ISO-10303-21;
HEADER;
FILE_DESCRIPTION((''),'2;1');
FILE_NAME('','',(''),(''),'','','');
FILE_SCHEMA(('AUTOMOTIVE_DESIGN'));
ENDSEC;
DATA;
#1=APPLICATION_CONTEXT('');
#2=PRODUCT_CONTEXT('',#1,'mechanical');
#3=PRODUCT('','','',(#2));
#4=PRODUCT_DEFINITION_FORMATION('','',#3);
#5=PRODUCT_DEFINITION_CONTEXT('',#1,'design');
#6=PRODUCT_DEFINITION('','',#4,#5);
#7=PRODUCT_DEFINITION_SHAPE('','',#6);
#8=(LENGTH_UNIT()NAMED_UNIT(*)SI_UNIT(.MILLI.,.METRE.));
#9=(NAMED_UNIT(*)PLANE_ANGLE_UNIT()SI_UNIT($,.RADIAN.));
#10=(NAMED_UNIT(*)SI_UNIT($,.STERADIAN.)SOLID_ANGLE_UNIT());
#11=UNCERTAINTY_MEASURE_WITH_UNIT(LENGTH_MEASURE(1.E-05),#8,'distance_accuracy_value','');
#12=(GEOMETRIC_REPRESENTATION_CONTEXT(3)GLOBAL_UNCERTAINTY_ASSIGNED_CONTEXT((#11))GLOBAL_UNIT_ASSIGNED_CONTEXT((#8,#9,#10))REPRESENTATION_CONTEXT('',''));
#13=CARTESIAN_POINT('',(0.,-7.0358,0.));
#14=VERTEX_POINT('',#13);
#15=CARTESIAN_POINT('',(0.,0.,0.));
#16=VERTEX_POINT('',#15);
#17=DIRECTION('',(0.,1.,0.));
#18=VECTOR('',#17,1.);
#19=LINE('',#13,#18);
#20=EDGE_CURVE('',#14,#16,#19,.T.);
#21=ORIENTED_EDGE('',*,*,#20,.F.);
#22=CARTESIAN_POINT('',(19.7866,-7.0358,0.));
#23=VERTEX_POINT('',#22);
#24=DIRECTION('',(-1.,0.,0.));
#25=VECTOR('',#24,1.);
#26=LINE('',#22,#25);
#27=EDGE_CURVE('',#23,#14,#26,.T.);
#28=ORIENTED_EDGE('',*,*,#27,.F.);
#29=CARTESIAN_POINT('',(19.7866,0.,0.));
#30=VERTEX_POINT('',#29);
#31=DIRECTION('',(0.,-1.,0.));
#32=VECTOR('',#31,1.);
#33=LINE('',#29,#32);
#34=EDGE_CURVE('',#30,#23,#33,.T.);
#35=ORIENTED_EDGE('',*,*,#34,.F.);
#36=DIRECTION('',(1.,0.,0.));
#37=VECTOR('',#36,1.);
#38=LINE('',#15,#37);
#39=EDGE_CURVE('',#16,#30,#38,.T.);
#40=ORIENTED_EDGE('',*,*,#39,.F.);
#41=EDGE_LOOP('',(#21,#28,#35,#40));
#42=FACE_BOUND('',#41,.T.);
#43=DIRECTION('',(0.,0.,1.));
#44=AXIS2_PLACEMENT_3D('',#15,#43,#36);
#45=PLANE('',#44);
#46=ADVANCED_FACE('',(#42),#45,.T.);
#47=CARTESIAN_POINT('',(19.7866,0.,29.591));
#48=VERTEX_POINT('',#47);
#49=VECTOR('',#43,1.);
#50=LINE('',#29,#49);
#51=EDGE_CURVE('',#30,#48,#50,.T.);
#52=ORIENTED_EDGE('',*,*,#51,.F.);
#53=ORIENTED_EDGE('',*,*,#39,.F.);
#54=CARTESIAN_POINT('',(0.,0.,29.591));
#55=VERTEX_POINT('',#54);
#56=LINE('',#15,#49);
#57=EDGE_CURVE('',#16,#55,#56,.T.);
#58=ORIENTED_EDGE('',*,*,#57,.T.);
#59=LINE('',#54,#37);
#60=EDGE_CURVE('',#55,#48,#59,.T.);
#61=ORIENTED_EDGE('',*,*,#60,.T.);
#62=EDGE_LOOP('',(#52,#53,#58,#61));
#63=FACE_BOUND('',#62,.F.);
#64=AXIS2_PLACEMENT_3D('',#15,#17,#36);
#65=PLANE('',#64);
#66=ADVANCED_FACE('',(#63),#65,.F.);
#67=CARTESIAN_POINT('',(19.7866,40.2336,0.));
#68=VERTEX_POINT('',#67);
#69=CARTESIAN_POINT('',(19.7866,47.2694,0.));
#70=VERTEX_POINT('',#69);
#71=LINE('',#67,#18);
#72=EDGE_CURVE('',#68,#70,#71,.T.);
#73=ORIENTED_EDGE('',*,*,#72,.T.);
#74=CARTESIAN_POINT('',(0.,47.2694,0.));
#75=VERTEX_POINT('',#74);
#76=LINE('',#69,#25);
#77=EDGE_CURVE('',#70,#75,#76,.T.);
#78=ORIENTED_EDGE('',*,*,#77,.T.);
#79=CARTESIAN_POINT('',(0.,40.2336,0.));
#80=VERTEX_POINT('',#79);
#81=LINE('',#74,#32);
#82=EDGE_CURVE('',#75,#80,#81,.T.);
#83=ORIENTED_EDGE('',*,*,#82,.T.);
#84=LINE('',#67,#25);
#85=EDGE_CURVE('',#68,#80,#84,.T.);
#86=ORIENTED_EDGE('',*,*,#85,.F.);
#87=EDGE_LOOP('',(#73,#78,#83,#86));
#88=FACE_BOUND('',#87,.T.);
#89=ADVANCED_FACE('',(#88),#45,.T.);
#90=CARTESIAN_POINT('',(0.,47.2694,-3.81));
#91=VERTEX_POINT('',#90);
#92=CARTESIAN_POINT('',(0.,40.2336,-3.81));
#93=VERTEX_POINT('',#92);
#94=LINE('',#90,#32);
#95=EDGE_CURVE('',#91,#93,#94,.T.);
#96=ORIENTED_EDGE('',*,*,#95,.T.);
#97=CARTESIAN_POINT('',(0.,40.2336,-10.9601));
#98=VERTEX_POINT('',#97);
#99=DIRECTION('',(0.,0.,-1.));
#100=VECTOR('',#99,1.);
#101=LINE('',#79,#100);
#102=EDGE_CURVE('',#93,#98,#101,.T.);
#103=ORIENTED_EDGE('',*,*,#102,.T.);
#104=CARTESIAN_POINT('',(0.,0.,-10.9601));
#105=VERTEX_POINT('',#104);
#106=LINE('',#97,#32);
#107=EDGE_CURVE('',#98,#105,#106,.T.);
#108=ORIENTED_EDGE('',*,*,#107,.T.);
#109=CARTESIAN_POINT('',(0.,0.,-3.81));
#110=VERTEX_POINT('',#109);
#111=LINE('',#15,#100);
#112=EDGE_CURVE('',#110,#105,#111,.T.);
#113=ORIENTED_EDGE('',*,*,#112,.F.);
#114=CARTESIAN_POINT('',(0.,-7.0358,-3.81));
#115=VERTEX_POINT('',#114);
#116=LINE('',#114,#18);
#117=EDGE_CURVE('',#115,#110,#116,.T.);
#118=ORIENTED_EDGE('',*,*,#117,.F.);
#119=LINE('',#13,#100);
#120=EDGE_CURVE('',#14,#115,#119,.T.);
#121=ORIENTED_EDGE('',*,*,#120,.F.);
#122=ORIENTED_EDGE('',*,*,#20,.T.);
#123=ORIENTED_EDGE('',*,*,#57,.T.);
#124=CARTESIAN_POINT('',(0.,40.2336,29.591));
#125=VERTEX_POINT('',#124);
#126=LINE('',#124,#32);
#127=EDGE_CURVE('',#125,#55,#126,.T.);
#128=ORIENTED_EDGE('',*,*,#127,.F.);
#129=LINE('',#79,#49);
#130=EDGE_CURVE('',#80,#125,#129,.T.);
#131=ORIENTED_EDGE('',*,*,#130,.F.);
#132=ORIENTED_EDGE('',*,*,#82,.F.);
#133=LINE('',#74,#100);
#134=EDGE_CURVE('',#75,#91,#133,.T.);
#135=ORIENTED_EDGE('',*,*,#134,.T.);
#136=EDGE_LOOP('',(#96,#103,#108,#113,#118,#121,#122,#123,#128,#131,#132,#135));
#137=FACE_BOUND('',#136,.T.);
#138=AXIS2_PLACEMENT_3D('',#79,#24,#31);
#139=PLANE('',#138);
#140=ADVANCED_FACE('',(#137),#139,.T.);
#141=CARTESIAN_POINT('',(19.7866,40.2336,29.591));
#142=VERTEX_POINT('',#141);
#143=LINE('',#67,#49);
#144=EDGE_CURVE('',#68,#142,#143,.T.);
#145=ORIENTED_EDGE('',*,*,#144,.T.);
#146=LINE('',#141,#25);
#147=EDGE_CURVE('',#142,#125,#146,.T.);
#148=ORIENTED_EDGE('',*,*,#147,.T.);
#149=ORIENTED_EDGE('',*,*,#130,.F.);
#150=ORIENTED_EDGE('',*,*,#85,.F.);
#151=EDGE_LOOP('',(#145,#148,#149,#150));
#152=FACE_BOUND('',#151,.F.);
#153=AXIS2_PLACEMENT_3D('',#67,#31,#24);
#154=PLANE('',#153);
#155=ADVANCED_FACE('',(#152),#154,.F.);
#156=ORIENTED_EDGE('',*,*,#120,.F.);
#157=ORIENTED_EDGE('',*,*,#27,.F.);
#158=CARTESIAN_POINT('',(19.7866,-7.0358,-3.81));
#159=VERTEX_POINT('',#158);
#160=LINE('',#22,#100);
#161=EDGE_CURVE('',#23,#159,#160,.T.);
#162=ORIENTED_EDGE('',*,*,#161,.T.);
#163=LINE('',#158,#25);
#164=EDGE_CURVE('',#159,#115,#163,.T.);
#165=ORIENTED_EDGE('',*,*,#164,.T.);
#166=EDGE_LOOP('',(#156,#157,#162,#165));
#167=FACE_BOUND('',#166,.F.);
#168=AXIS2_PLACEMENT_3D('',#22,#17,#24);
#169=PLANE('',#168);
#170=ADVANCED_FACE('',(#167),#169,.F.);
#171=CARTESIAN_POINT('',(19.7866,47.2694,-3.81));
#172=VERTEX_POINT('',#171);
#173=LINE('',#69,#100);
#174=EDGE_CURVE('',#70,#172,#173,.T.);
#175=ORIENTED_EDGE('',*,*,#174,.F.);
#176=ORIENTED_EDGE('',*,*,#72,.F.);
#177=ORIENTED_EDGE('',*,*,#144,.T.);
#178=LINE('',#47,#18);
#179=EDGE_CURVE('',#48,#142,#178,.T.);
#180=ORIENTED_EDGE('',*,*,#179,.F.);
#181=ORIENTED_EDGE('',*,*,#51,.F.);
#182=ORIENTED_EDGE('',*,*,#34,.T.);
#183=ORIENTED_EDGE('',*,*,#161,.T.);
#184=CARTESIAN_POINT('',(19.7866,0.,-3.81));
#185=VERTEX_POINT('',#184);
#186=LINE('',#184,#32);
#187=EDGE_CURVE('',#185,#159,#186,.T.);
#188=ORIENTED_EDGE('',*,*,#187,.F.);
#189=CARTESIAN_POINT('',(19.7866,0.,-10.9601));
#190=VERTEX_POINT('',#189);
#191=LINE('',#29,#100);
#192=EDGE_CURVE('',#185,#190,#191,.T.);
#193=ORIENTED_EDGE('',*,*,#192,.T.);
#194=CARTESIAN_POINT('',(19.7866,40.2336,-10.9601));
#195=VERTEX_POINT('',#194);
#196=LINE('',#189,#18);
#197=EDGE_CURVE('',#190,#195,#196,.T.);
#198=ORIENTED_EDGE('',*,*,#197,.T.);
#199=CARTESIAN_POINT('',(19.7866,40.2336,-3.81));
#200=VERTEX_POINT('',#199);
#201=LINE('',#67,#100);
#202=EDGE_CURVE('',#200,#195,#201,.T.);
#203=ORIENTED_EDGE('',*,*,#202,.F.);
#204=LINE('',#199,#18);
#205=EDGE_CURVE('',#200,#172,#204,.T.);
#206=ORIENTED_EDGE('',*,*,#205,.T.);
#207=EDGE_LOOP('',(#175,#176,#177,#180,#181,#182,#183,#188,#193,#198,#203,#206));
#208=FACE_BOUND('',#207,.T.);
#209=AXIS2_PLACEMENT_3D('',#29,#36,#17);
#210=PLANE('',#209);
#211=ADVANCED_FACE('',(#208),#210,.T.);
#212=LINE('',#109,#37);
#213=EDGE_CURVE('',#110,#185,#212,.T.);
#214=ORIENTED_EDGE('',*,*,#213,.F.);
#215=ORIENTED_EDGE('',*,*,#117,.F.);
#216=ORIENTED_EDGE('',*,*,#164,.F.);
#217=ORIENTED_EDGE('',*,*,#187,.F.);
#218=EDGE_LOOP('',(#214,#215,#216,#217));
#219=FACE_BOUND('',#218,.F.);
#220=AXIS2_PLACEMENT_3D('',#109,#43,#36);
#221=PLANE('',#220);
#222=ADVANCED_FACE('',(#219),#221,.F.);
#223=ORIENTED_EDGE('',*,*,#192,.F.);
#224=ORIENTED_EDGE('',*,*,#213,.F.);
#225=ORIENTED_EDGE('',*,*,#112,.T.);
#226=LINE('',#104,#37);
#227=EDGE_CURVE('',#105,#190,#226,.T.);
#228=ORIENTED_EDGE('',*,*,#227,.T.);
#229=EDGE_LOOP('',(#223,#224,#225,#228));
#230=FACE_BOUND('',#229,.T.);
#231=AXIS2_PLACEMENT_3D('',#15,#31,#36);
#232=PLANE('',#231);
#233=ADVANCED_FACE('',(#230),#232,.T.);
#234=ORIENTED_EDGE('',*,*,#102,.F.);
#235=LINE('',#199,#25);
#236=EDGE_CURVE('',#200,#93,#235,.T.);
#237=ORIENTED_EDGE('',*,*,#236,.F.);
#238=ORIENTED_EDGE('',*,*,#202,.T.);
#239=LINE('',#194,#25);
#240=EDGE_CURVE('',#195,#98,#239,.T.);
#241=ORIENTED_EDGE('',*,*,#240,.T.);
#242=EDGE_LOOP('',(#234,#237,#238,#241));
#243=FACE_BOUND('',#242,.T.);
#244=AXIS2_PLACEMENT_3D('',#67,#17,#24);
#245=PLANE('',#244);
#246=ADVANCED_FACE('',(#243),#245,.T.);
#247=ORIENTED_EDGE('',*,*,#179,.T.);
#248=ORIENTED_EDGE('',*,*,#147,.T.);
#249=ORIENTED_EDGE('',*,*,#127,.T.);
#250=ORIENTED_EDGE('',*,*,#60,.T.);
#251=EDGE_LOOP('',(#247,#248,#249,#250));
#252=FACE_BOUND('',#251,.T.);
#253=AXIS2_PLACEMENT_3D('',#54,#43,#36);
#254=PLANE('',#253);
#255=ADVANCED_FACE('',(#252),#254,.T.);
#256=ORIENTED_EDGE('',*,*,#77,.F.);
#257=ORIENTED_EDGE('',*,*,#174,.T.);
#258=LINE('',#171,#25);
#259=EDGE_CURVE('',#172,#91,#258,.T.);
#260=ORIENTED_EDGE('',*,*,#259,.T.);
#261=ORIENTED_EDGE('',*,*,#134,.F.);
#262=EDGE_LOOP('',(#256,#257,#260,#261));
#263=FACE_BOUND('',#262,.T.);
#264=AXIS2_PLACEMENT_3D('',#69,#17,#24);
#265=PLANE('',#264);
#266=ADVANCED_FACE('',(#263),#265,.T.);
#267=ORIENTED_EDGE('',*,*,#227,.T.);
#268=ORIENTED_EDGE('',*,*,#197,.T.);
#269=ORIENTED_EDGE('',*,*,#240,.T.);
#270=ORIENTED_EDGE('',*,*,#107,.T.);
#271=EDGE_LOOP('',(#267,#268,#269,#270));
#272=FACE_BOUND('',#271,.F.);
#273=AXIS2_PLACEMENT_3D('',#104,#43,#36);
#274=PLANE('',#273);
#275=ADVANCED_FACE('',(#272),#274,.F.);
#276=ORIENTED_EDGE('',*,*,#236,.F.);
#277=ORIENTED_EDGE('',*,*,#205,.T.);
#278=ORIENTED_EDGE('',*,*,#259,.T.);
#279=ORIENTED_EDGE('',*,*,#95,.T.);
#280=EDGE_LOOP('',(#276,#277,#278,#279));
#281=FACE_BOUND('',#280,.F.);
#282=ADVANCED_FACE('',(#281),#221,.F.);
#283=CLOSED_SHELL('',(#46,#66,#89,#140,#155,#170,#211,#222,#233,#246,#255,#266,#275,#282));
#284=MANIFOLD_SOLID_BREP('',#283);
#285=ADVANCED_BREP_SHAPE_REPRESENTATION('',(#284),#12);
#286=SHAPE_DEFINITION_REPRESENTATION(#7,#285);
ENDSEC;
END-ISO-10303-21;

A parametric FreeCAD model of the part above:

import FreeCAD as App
import Part
import Sketcher
Q = App.Units.Quantity

doc = App.newDocument("Part")
body = doc.addObject("PartDesign::Body", "Body")
body.AllowCompound = True

# Sketch on XY plane
sketch1 = body.newObject("Sketcher::SketchObject", "Sketch")
sketch1.AttachmentSupport = (doc.getObject("XY_Plane"), [""])
sketch1.MapMode = "FlatFace"
sketch1.addGeometry([
    Part.LineSegment(App.Vector(0, 40, 0), App.Vector(0, 0, 0)),
    Part.LineSegment(App.Vector(0, 0, 0), App.Vector(20, 0, 0)),
    Part.LineSegment(App.Vector(20, 0, 0), App.Vector(20, 40, 0)),
    Part.LineSegment(App.Vector(20, 40, 0), App.Vector(0, 40, 0)),
], False)
sketch1.addConstraint([
    Sketcher.Constraint("Coincident", 0, 2, 1, 1),
    Sketcher.Constraint("Coincident", 1, 2, 2, 1),
    Sketcher.Constraint("Coincident", 2, 2, 3, 1),
    Sketcher.Constraint("Coincident", 3, 2, 0, 1),
    Sketcher.Constraint("Vertical", 0),
    Sketcher.Constraint("Horizontal", 1),
    Sketcher.Constraint("Vertical", 2),
    Sketcher.Constraint("Horizontal", 3),
    Sketcher.Constraint("Coincident", 0, 2, -1, 1),
    Sketcher.Constraint("DistanceX", 1, 1, 1, 2, Q("0.779 in")),
    Sketcher.Constraint("DistanceY", 0, 2, 0, 1, Q("1.584 in")),
])
pad1 = body.newObject("PartDesign::Pad", "Pad")
pad1.Profile = sketch1
pad1.Length = Q("1.165 in")

# Sketch on XY plane
sketch2 = body.newObject("Sketcher::SketchObject", "Sketch001")
sketch2.AttachmentSupport = (doc.getObject("XY_Plane"), [""])
sketch2.MapMode = "FlatFace"
sketch2.addGeometry([
    Part.LineSegment(App.Vector(20, 0, 0), App.Vector(0, 0, 0)),  # 0
    Part.LineSegment(App.Vector(0, 0, 0), App.Vector(0, -7, 0)),  # 1
    Part.LineSegment(App.Vector(0, -7, 0), App.Vector(20, -7, 0)),  # 2
    Part.LineSegment(App.Vector(20, -7, 0), App.Vector(20, 0, 0)),  # 3
    Part.LineSegment(App.Vector(0, 47, 0), App.Vector(0, 40, 0)),  # 4
    Part.LineSegment(App.Vector(0, 40, 0), App.Vector(20, 40, 0)),  # 5
    Part.LineSegment(App.Vector(20, 40, 0), App.Vector(20, 47, 0)),  # 6
    Part.LineSegment(App.Vector(20, 47, 0), App.Vector(0, 47, 0)),  # 7
], False)
sketch2.addConstraint([
    Sketcher.Constraint("Coincident", 0, 2, 1, 1),
    Sketcher.Constraint("Coincident", 1, 2, 2, 1),
    Sketcher.Constraint("Coincident", 2, 2, 3, 1),
    Sketcher.Constraint("Coincident", 3, 2, 0, 1),
    Sketcher.Constraint("Coincident", 4, 2, 5, 1),
    Sketcher.Constraint("Coincident", 5, 2, 6, 1),
    Sketcher.Constraint("Coincident", 6, 2, 7, 1),
    Sketcher.Constraint("Coincident", 7, 2, 4, 1),
    Sketcher.Constraint("Horizontal", 0),
    Sketcher.Constraint("Vertical", 1),
    Sketcher.Constraint("Horizontal", 2),
    Sketcher.Constraint("Vertical", 3),
    Sketcher.Constraint("Vertical", 4),
    Sketcher.Constraint("Horizontal", 5),
    Sketcher.Constraint("Vertical", 6),
    Sketcher.Constraint("Horizontal", 7),
    Sketcher.Constraint("Coincident", 0, 2, -1, 1),
    Sketcher.Constraint("PointOnObject", 4, 2, -2),
    Sketcher.Constraint("Vertical", 3, 2, 5, 2),
    Sketcher.Constraint("Equal", 3, 4),
    Sketcher.Constraint("DistanceX", 0, 2, 0, 1, Q("0.779 in")),
    Sketcher.Constraint("DistanceY", 1, 2, 1, 1, Q("0.277 in")),
    Sketcher.Constraint("DistanceY", -1, 1, 4, 2, Q("1.584 in")),
])
pad2 = body.newObject("PartDesign::Pad", "Pad001")
pad2.Profile = sketch2
pad2.Length = Q("0.15 in")
pad2.Reversed = True

# Sketch on XY plane
sketch3 = body.newObject("Sketcher::SketchObject", "Sketch002")
sketch3.AttachmentSupport = (doc.getObject("XY_Plane"), [""])
sketch3.MapMode = "FlatFace"
sketch3.addGeometry([
    Part.LineSegment(App.Vector(0, 40, 0), App.Vector(0, 0, 0)),
    Part.LineSegment(App.Vector(0, 0, 0), App.Vector(20, 0, 0)),
    Part.LineSegment(App.Vector(20, 0, 0), App.Vector(20, 40, 0)),
    Part.LineSegment(App.Vector(20, 40, 0), App.Vector(0, 40, 0)),
], False)
sketch3.addConstraint([
    Sketcher.Constraint("Coincident", 0, 2, 1, 1),
    Sketcher.Constraint("Coincident", 1, 2, 2, 1),
    Sketcher.Constraint("Coincident", 2, 2, 3, 1),
    Sketcher.Constraint("Coincident", 3, 2, 0, 1),
    Sketcher.Constraint("Vertical", 0),
    Sketcher.Constraint("Horizontal", 1),
    Sketcher.Constraint("Vertical", 2),
    Sketcher.Constraint("Horizontal", 3),
    Sketcher.Constraint("Coincident", 0, 2, -1, 1),
    Sketcher.Constraint("DistanceX", 1, 1, 1, 2, Q("0.779 in")),
    Sketcher.Constraint("DistanceY", 0, 2, 0, 1, Q("1.584 in")),
])
pad3 = body.newObject("PartDesign::Pad", "Pad002")
pad3.Profile = sketch3
pad3.Length = Q("0.4315 in")
pad3.Reversed = True

doc.recompute()
